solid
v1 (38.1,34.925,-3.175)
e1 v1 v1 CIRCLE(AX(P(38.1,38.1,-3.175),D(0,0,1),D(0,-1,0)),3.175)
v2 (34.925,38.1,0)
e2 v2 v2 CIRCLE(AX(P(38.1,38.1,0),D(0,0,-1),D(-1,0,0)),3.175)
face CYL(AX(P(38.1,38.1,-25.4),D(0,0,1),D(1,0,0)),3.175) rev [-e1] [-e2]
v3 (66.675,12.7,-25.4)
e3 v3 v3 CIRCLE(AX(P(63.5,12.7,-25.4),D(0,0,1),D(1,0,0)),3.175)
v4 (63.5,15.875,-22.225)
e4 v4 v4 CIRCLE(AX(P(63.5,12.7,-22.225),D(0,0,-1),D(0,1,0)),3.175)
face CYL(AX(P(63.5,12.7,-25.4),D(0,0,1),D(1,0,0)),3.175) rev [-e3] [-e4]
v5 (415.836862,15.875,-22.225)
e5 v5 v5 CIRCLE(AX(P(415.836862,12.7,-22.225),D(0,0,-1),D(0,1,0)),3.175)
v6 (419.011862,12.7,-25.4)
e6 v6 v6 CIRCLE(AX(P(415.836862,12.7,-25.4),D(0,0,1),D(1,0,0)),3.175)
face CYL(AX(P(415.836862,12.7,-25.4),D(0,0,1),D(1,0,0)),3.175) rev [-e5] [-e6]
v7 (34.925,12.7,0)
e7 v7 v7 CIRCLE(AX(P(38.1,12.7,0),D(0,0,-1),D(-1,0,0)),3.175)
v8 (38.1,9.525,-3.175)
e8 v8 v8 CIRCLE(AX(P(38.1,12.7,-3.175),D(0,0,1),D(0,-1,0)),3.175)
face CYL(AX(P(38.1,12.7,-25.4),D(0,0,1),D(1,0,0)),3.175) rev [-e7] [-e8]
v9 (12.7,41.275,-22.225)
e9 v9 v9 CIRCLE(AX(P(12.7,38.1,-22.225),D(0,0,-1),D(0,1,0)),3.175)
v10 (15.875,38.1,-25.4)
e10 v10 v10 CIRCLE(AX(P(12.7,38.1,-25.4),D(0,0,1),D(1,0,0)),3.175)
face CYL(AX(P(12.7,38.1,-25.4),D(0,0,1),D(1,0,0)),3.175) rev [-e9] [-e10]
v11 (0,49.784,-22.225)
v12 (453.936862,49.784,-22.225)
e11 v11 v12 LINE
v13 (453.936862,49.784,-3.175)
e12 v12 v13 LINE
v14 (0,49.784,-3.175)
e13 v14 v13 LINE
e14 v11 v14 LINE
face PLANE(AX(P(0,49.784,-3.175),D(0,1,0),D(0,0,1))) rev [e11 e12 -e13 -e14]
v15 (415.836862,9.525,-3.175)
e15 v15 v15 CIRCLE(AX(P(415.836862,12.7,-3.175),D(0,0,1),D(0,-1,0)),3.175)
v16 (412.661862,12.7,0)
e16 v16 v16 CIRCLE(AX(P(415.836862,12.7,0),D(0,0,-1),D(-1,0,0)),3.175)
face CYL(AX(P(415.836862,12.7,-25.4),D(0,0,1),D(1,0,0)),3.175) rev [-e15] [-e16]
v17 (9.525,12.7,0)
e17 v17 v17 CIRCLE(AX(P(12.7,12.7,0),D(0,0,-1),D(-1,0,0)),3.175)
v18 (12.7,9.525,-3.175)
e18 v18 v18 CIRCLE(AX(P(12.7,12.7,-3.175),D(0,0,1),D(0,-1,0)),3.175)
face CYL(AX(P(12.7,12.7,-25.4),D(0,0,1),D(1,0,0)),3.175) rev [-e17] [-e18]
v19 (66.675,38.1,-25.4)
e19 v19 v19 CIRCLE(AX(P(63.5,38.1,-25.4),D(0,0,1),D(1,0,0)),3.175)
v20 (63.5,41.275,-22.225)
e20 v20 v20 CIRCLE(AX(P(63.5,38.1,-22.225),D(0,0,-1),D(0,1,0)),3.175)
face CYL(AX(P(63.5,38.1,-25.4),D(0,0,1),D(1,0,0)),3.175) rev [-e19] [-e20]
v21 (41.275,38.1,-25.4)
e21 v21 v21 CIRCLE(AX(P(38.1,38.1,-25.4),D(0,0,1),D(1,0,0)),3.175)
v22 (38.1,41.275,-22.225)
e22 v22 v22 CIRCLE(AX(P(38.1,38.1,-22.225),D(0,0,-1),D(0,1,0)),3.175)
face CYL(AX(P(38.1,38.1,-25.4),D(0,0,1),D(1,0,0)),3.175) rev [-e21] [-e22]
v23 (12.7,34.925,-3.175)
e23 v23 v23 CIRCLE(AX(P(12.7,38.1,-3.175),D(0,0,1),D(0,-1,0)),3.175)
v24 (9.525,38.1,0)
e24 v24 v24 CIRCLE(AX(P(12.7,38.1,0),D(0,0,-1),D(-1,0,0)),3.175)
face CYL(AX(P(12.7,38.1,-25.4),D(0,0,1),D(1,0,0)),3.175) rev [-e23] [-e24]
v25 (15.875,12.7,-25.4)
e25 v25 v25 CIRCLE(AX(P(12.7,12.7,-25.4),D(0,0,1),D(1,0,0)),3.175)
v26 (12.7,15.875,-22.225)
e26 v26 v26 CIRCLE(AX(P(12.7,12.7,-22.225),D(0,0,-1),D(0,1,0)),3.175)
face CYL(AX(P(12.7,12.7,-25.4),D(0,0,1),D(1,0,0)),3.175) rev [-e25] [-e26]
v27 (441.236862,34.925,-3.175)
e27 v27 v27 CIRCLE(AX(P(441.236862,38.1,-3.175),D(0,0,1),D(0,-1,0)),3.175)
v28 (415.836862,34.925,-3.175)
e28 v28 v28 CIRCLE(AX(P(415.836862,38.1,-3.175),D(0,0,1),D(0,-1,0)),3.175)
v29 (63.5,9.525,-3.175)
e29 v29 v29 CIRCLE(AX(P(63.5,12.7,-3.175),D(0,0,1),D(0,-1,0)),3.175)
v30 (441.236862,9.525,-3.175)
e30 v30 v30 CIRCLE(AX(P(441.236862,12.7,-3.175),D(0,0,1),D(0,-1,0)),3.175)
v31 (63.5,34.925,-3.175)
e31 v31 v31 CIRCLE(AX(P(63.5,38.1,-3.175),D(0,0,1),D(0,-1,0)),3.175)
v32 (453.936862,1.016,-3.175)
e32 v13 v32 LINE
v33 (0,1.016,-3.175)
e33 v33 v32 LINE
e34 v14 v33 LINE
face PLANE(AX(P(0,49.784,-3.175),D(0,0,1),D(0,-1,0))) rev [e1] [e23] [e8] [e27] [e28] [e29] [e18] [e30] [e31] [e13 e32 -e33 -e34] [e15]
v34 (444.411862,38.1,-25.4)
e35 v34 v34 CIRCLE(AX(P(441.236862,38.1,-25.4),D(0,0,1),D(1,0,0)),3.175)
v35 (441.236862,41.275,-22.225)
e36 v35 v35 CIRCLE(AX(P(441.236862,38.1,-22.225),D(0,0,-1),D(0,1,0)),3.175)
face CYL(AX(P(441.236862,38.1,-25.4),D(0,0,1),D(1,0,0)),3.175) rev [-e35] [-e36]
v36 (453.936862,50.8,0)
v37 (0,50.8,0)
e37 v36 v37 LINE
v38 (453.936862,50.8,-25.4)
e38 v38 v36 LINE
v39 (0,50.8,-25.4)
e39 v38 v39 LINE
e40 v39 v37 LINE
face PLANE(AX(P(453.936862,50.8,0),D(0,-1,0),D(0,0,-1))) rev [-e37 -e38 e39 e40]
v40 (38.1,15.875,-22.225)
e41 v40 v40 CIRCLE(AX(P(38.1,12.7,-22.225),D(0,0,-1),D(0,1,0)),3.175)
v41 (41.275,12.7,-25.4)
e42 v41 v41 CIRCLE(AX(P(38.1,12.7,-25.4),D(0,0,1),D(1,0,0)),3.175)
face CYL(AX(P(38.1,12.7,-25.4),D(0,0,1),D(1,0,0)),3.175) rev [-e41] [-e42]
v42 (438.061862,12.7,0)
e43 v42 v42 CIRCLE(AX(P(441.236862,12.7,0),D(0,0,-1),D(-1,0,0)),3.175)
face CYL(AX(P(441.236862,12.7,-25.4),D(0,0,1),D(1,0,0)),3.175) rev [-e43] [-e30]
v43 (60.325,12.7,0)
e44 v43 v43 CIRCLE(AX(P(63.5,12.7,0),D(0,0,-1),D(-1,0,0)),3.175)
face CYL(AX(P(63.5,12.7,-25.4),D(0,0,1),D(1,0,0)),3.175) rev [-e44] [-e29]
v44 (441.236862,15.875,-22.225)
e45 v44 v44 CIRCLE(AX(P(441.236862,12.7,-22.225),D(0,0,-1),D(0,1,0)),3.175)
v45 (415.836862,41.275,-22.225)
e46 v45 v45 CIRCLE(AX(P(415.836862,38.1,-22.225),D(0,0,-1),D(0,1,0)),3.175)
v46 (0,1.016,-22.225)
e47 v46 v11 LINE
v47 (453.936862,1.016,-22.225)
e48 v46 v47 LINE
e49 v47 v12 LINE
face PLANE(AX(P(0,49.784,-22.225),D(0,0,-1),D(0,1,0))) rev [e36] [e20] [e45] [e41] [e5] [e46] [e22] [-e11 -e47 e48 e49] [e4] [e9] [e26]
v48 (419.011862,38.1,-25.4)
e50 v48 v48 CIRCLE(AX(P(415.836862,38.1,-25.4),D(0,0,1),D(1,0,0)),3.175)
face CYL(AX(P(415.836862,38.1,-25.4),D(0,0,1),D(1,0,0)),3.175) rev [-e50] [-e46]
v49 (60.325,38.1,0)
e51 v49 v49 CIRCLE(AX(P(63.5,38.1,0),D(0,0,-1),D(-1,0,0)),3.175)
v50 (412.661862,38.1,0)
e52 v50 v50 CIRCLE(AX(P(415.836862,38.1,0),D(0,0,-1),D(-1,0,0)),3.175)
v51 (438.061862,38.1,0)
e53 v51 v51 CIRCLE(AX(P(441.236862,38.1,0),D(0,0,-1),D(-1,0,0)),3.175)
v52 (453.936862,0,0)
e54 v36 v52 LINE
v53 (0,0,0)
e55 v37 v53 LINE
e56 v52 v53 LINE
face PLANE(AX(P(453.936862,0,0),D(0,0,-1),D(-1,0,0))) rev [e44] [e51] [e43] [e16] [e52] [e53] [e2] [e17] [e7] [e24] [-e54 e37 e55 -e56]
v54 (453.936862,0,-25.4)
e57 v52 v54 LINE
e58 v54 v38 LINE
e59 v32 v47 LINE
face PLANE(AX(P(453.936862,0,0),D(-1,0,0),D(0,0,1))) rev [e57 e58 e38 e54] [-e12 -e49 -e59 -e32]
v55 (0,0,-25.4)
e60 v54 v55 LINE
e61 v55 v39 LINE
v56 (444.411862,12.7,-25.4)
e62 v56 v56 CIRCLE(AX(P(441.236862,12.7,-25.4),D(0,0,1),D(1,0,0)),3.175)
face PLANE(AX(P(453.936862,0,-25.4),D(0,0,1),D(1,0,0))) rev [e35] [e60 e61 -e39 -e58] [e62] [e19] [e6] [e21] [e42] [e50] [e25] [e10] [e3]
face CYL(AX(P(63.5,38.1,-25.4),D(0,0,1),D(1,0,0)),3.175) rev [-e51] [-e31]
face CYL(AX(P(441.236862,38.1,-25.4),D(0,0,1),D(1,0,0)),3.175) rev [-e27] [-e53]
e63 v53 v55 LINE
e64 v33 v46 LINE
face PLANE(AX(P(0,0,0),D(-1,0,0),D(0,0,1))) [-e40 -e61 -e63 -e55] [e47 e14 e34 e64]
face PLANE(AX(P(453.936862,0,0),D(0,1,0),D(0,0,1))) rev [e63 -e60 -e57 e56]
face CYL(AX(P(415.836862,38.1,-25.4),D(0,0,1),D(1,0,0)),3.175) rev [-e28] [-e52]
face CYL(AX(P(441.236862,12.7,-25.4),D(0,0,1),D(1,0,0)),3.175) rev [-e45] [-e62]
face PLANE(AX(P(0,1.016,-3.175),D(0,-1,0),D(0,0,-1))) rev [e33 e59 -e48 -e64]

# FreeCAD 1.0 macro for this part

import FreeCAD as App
import Part
import Sketcher

V = App.Vector
Q = App.Units.Quantity

doc = App.newDocument("Part")
body = doc.addObject("PartDesign::Body", "Body")

# Sketch on YZ plane
sketch1 = body.newObject("Sketcher::SketchObject", "Sketch")
sketch1.AttachmentSupport = (doc.getObject("YZ_Plane"), [""])
sketch1.MapMode = "FlatFace"
sketch1.addGeometry([
    Part.LineSegment(V(51, 0, 0), V(0, 0, 0)),
    Part.LineSegment(V(0, 0, 0), V(0, -25, 0)),
    Part.LineSegment(V(0, -25, 0), V(51, -25, 0)),
    Part.LineSegment(V(51, -25, 0), V(51, 0, 0)),
], False)
sketch1.addConstraint([
    Sketcher.Constraint("Coincident", 0, 2, 1, 1),
    Sketcher.Constraint("Coincident", 1, 2, 2, 1),
    Sketcher.Constraint("Coincident", 2, 2, 3, 1),
    Sketcher.Constraint("Coincident", 3, 2, 0, 1),
    Sketcher.Constraint("Horizontal", 0),
    Sketcher.Constraint("Vertical", 1),
    Sketcher.Constraint("Horizontal", 2),
    Sketcher.Constraint("Vertical", 3),
    Sketcher.Constraint("Coincident", 0, 2, -1, 1),
    Sketcher.Constraint("DistanceX", 0, 2, 0, 1, Q("2 in")),
    Sketcher.Constraint("DistanceY", 1, 2, 1, 1, Q("1 in")),
])
pad1 = body.newObject("PartDesign::Pad", "Pad")
pad1.Profile = sketch1
pad1.Length = 453.936862

# Sketch on YZ plane
sketch2 = body.newObject("Sketcher::SketchObject", "Sketch001")
sketch2.AttachmentSupport = (doc.getObject("YZ_Plane"), [""])
sketch2.MapMode = "FlatFace"
sketch2.AttachmentOffset = App.Placement(V(0, 0, 453.936862), App.Rotation())
sketch2.addGeometry([
    Part.LineSegment(V(50, -3, 0), V(1, -3, 0)),
    Part.LineSegment(V(1, -3, 0), V(1, -22, 0)),
    Part.LineSegment(V(1, -22, 0), V(50, -22, 0)),
    Part.LineSegment(V(50, -22, 0), V(50, -3, 0)),
], False)
sketch2.addConstraint([
    Sketcher.Constraint("Coincident", 0, 2, 1, 1),
    Sketcher.Constraint("Coincident", 1, 2, 2, 1),
    Sketcher.Constraint("Coincident", 2, 2, 3, 1),
    Sketcher.Constraint("Coincident", 3, 2, 0, 1),
    Sketcher.Constraint("Horizontal", 0),
    Sketcher.Constraint("Vertical", 1),
    Sketcher.Constraint("Horizontal", 2),
    Sketcher.Constraint("Vertical", 3),
    Sketcher.Constraint("DistanceX", 0, 2, 0, 1, Q("1.92 in")),
    Sketcher.Constraint("DistanceY", 1, 2, 1, 1, Q("0.75 in")),
    Sketcher.Constraint("DistanceX", -1, 1, 0, 2, Q("0.04 in")),
    Sketcher.Constraint("DistanceY", 0, 2, -1, 1, Q("0.125 in")),
])
pocket1 = body.newObject("PartDesign::Pocket", "Pocket")
pocket1.Profile = sketch2
pocket1.Type = "ThroughAll"

# Sketch on XY plane
sketch3 = body.newObject("Sketcher::SketchObject", "Sketch002")
sketch3.AttachmentSupport = (doc.getObject("XY_Plane"), [""])
sketch3.MapMode = "FlatFace"
sketch3.addGeometry([
    Part.Circle(V(12.7, 38.1, 0), V(0, 0, 1), 3.2),  # 0
    Part.Circle(V(38.1, 38.1, 0), V(0, 0, 1), 3.2),  # 1
    Part.Circle(V(12.7, 12.7, 0), V(0, 0, 1), 3.2),  # 2
    Part.Circle(V(38.1, 12.7, 0), V(0, 0, 1), 3.2),  # 3
    Part.Circle(V(63.5, 38.1, 0), V(0, 0, 1), 3.2),  # 4
    Part.Circle(V(63.5, 12.7, 0), V(0, 0, 1), 3.2),  # 5
    Part.Circle(V(441.2, 38.1, 0), V(0, 0, 1), 3.2),  # 6
    Part.Circle(V(441.2, 12.7, 0), V(0, 0, 1), 3.2),  # 7
    Part.Circle(V(415.8, 38.1, 0), V(0, 0, 1), 3.2),  # 8
    Part.Circle(V(415.8, 12.7, 0), V(0, 0, 1), 3.2),  # 9
], False)
sketch3.addConstraint([
    Sketcher.Constraint("Equal", 0, 1),
    Sketcher.Constraint("Equal", 1, 2),
    Sketcher.Constraint("Equal", 2, 3),
    Sketcher.Constraint("Equal", 3, 4),
    Sketcher.Constraint("Equal", 4, 5),
    Sketcher.Constraint("Equal", 5, 6),
    Sketcher.Constraint("Equal", 6, 7),
    Sketcher.Constraint("Equal", 7, 8),
    Sketcher.Constraint("Equal", 8, 9),
    Sketcher.Constraint("Horizontal", 0, 3, 1, 3),
    Sketcher.Constraint("Horizontal", 2, 3, 3, 3),
    Sketcher.Constraint("Horizontal", 1, 3, 4, 3),
    Sketcher.Constraint("Horizontal", 3, 3, 5, 3),
    Sketcher.Constraint("Horizontal", 4, 3, 6, 3),
    Sketcher.Constraint("Horizontal", 5, 3, 7, 3),
    Sketcher.Constraint("Horizontal", 6, 3, 8, 3),
    Sketcher.Constraint("Horizontal", 7, 3, 9, 3),
    Sketcher.Constraint("Vertical", 0, 3, 2, 3),
    Sketcher.Constraint("Vertical", 1, 3, 3, 3),
    Sketcher.Constraint("Vertical", 4, 3, 5, 3),
    Sketcher.Constraint("Vertical", 6, 3, 7, 3),
    Sketcher.Constraint("Vertical", 8, 3, 9, 3),
    Sketcher.Constraint("Diameter", 0, Q("0.25 in")),
    Sketcher.Constraint("DistanceX", 0, 3, 1, 3, Q("1 in")),
    Sketcher.Constraint("DistanceY", 2, 3, 0, 3, Q("1 in")),
    Sketcher.Constraint("DistanceX", 1, 3, 4, 3, Q("1 in")),
    Sketcher.Constraint("DistanceX", 8, 3, 6, 3, Q("1 in")),
    Sketcher.Constraint("DistanceX", -1, 1, 0, 3, Q("0.5 in")),
    Sketcher.Constraint("DistanceY", -1, 1, 0, 3, Q("1.5 in")),
    Sketcher.Constraint("DistanceX", -1, 1, 6, 3, Q("441.236862 mm")),
])
pocket2 = body.newObject("PartDesign::Pocket", "Pocket001")
pocket2.Profile = sketch3
pocket2.Type = "ThroughAll"
pocket2.Midplane = True

doc.recompute()
